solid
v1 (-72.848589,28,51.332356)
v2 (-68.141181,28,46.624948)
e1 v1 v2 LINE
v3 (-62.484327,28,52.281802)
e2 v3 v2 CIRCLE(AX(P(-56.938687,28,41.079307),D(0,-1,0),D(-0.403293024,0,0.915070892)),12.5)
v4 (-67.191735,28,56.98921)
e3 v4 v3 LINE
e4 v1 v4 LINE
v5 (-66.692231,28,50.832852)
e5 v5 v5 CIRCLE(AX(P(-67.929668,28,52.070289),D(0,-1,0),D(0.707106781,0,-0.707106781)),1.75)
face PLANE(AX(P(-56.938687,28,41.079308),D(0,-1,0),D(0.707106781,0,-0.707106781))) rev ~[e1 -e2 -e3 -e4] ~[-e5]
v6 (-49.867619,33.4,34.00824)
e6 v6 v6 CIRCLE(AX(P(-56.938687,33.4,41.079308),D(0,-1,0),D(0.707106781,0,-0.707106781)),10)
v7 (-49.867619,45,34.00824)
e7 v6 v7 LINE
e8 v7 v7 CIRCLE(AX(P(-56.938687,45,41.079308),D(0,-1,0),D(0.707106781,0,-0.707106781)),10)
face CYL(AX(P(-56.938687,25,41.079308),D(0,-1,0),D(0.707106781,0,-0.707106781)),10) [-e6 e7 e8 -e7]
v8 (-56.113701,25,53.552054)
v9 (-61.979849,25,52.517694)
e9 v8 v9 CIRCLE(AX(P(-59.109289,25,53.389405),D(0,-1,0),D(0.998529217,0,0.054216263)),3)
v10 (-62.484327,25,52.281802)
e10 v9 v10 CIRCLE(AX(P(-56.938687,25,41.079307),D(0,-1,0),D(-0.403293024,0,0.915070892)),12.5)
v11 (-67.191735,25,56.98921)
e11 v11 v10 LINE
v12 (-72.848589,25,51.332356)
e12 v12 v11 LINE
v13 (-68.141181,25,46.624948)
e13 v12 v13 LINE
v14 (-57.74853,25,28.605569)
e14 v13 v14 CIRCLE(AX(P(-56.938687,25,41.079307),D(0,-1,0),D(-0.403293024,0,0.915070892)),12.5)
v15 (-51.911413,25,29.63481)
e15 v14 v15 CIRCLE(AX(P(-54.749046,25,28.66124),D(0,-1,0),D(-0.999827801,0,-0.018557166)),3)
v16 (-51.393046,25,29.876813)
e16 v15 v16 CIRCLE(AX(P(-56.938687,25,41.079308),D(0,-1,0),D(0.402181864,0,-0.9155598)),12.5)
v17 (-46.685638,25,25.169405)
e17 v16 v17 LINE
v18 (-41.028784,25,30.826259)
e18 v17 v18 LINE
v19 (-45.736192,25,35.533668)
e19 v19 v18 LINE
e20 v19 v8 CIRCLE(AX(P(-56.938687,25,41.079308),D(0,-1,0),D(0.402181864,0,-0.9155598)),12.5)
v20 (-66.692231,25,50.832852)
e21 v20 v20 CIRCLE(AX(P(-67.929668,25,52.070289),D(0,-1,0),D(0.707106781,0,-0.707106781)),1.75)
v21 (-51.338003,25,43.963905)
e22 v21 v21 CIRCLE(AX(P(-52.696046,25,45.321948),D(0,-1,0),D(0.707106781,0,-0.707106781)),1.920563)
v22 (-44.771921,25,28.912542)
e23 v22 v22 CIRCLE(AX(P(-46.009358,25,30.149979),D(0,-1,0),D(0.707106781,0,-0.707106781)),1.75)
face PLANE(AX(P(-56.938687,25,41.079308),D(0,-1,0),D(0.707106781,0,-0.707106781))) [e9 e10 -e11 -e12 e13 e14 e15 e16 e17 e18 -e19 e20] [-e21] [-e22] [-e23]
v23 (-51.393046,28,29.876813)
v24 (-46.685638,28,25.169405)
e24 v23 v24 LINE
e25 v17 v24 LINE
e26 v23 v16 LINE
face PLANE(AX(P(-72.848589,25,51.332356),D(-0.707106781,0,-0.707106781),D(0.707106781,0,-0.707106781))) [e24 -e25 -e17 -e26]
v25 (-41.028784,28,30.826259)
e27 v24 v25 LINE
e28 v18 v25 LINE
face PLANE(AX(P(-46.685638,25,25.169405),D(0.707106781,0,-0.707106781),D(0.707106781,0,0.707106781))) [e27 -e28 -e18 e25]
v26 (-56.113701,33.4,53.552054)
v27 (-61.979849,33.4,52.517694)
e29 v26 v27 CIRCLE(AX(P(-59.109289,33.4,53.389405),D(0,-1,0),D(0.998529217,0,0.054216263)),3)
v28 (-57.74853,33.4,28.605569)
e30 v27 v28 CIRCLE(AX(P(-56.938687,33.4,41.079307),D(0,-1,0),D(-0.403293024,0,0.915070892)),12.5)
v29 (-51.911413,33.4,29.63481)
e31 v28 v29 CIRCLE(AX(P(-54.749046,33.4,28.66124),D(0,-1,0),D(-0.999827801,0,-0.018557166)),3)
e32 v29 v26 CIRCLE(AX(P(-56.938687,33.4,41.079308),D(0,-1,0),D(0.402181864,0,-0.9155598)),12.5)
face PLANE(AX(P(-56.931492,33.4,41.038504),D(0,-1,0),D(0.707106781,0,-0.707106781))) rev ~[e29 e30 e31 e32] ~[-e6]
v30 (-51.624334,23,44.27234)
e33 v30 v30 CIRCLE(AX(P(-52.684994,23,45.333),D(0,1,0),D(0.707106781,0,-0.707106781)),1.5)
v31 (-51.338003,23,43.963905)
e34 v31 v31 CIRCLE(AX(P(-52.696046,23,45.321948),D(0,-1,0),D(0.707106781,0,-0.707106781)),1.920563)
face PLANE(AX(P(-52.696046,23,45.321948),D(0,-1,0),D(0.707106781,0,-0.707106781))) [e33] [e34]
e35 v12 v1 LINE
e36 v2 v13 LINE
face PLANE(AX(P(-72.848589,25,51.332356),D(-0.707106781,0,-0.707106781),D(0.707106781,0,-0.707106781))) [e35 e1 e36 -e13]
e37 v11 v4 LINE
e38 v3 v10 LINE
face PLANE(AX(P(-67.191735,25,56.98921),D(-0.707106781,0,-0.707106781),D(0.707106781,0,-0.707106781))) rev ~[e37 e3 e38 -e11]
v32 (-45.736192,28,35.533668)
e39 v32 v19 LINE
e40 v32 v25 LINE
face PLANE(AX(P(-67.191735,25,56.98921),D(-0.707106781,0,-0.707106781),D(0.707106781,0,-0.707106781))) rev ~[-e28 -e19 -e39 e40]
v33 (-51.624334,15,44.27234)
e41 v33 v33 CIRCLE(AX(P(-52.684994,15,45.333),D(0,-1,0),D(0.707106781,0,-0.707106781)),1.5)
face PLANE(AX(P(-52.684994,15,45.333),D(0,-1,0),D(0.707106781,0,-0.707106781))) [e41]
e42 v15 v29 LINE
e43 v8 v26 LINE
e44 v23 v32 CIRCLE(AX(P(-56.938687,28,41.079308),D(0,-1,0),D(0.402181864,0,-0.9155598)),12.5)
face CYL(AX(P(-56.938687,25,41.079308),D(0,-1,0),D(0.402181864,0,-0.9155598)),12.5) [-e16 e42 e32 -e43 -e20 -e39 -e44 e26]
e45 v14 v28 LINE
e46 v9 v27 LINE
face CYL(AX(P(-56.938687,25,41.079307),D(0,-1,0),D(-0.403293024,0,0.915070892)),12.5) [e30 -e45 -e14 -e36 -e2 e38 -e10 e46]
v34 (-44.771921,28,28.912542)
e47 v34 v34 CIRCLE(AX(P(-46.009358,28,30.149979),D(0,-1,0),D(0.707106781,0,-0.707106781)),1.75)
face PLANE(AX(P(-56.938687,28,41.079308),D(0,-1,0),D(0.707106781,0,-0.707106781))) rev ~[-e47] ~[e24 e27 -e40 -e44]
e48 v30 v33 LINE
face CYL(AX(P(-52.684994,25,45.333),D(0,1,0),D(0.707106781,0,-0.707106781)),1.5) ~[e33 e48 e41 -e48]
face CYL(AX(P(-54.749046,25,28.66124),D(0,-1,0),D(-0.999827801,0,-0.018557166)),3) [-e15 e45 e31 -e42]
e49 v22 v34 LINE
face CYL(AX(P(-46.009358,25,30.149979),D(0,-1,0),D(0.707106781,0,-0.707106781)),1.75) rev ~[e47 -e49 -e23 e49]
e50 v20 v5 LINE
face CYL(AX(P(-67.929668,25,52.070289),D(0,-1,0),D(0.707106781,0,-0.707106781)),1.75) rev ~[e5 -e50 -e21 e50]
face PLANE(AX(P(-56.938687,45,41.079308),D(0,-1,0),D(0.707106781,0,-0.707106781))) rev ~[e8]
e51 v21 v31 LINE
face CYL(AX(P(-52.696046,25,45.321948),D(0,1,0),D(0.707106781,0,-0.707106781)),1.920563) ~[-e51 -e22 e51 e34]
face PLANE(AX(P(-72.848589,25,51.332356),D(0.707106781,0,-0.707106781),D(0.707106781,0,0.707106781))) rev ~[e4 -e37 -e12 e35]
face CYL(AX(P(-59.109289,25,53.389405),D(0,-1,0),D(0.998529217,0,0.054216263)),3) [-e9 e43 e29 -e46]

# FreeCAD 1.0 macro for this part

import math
import FreeCAD as App
import Part
import Sketcher
Q = App.Units.Quantity

doc = App.newDocument("Part")
params = doc.addObject("Spreadsheet::Sheet", "Params")
for row, (alias, value) in enumerate([
    ("sketch1_diameter", "3.5 mm"),
    ("sketch1_width", "37 mm"),
    ("sketch1_height", "8 mm"),
    ("pad1_length", "3 mm"),
    ("sketch2_radius", "3 mm"),
    ("sketch2_radius2", "12.5 mm"),
    ("pad2_length", "8.4 mm"),
    ("sketch3_diameter", "20 mm"),
    ("pad3_length", "20 mm"),
    ("pad4_length", "2 mm"),
    ("sketch5_diameter", "3 mm"),
    ("pad5_length", "10 mm"),
], start=1):
    params.set(f"A{row}", alias)
    params.set(f"B{row}", "=" + value)
    params.setAlias(f"B{row}", alias)

body = doc.addObject("PartDesign::Body", "Body")

# Sketch on XY plane
sketch1 = doc.addObject("Sketcher::SketchObject", "Sketch")
body.addObject(sketch1)
sketch1.AttachmentSupport = (doc.XY_Plane, [""])
sketch1.MapMode = "FlatFace"
sketch1.addGeometry([
    Part.LineSegment(App.Vector(-18.5, 4, 0), App.Vector(-18.5, -4, 0)),  # 0
    Part.LineSegment(App.Vector(-18.5, -4, 0), App.Vector(18.5, -4, 0)),  # 1
    Part.LineSegment(App.Vector(18.5, -4, 0), App.Vector(18.5, 4, 0)),  # 2
    Part.LineSegment(App.Vector(18.5, 4, 0), App.Vector(-18.5, 4, 0)),  # 3
    Part.Circle(App.Vector(-15.5, 0, 0), App.Vector(0, 0, 1), 1.8),  # 4
    Part.Circle(App.Vector(15.5, 0, 0), App.Vector(0, 0, 1), 1.8),  # 5
], False)
sketch1.addConstraint([
    Sketcher.Constraint("Coincident", 0, 2, 1, 1),
    Sketcher.Constraint("Coincident", 1, 2, 2, 1),
    Sketcher.Constraint("Coincident", 2, 2, 3, 1),
    Sketcher.Constraint("Coincident", 3, 2, 0, 1),
    Sketcher.Constraint("Vertical", 0),
    Sketcher.Constraint("Horizontal", 1),
    Sketcher.Constraint("Vertical", 2),
    Sketcher.Constraint("Horizontal", 3),
    Sketcher.Constraint("Equal", 4, 5),
    Sketcher.Constraint("Symmetric", 0, 2, 2, 2, -1, 1),
    Sketcher.Constraint("PointOnObject", 4, 3, -1),
    Sketcher.Constraint("PointOnObject", 5, 3, -1),
    Sketcher.Constraint("Diameter", 4, Q("3.5 mm")),
    Sketcher.Constraint("DistanceX", 1, 1, 1, 2, Q("37 mm")),
    Sketcher.Constraint("DistanceY", 0, 2, 0, 1, Q("8 mm")),
    Sketcher.Constraint("DistanceX", 4, 3, 5, 3, Q("31 mm")),
    Sketcher.Constraint("DistanceX", 4, 3, -1, 1, Q("15.543595 mm")),
])
sketch1.setExpression("Constraints[12]", "Params.sketch1_diameter")
sketch1.setExpression("Constraints[13]", "Params.sketch1_width")
sketch1.setExpression("Constraints[14]", "Params.sketch1_height")
pad1 = doc.addObject("PartDesign::Pad", "Pad")
body.addObject(pad1)
pad1.Profile = sketch1
pad1.setExpression("Length", "Params.pad1_length")
pad1.Reversed = True

# Sketch on XY plane
sketch2 = doc.addObject("Sketcher::SketchObject", "Sketch001")
body.addObject(sketch2)
sketch2.AttachmentSupport = (doc.XY_Plane, [""])
sketch2.MapMode = "FlatFace"
sketch2.addGeometry([
    Part.ArcOfCircle(Part.Circle(App.Vector(0, 0, 0), App.Vector(0, 0, 1), 12.5), math.radians(159), math.radians(311)),
    Part.ArcOfCircle(Part.Circle(App.Vector(10.3, -7.2, 0), App.Vector(0, 0, 1), 3), math.radians(-134), math.radians(64)),
    Part.ArcOfCircle(Part.Circle(App.Vector(0, 0, 0), App.Vector(0, 0, 1), 12.5), math.radians(-21), math.radians(131)),
    Part.ArcOfCircle(Part.Circle(App.Vector(-10.2, 7.2, 0), App.Vector(0, 0, 1), 3), math.radians(48), math.radians(242)),
], False)
sketch2.addConstraint([
    Sketcher.Constraint("Coincident", 0, 2, 1, 1),
    Sketcher.Constraint("Coincident", 1, 2, 2, 1),
    Sketcher.Constraint("Coincident", 2, 2, 3, 1),
    Sketcher.Constraint("Coincident", 3, 2, 0, 1),
    Sketcher.Constraint("Coincident", 0, 3, -1, 1),
    Sketcher.Constraint("Coincident", 2, 3, -1, 1),
    Sketcher.Constraint("Equal", 0, 2),
    Sketcher.Constraint("Equal", 1, 3),
    Sketcher.Constraint("Radius", 1, Q("3 mm")),
    Sketcher.Constraint("Radius", 0, Q("12.5 mm")),
    Sketcher.Constraint("DistanceX", 3, 3, -1, 1, Q("10.239401 mm")),
    Sketcher.Constraint("DistanceX", -1, 1, 1, 2, Q("11.647301 mm")),
    Sketcher.Constraint("DistanceX", 3, 2, -1, 1, Q("11.652801 mm")),
    Sketcher.Constraint("DistanceX", -1, 1, 1, 3, Q("10.329209 mm")),
])
sketch2.setExpression("Constraints[8]", "Params.sketch2_radius")
sketch2.setExpression("Constraints[9]", "Params.sketch2_radius2")
pad2 = doc.addObject("PartDesign::Pad", "Pad001")
body.addObject(pad2)
pad2.Profile = sketch2
pad2.setExpression("Length", "Params.pad2_length")
pad2.Reversed = True

# Sketch on XY plane
sketch3 = doc.addObject("Sketcher::SketchObject", "Sketch002")
body.addObject(sketch3)
sketch3.AttachmentSupport = (doc.XY_Plane, [""])
sketch3.MapMode = "FlatFace"
sketch3.addGeometry(Part.Circle(App.Vector(0, 0, 0), App.Vector(0, 0, 1), 10), False)
sketch3.addConstraint([
    Sketcher.Constraint("Coincident", 0, 3, -1, 1),
    Sketcher.Constraint("Diameter", 0, Q("20 mm")),
])
sketch3.setExpression("Constraints[1]", "Params.sketch3_diameter")
pad3 = doc.addObject("PartDesign::Pad", "Pad002")
body.addObject(pad3)
pad3.Profile = sketch3
pad3.setExpression("Length", "Params.pad3_length")
pad3.Reversed = True

# Sketch on XY plane
sketch4 = doc.addObject("Sketcher::SketchObject", "Sketch003")
body.addObject(sketch4)
sketch4.AttachmentSupport = (doc.XY_Plane, [""])
sketch4.MapMode = "FlatFace"
sketch4.addGeometry(Part.Circle(App.Vector(0, 6, 0), App.Vector(0, 0, 1), 1.9), False)
sketch4.addConstraint([
    Sketcher.Constraint("PointOnObject", 0, 3, -2),
    Sketcher.Constraint("DistanceY", -1, 1, 0, 3, Q("6 mm")),
    Sketcher.Constraint("Diameter", 0, Q("3.841126 mm")),
])
pad4 = doc.addObject("PartDesign::Pad", "Pad003")
body.addObject(pad4)
pad4.Profile = sketch4
pad4.setExpression("Length", "Params.pad4_length")

# Sketch on XY plane
sketch5 = doc.addObject("Sketcher::SketchObject", "Sketch004")
body.addObject(sketch5)
sketch5.AttachmentSupport = (doc.XY_Plane, [""])
sketch5.MapMode = "FlatFace"
sketch5.addGeometry(Part.Circle(App.Vector(0, 6, 0), App.Vector(0, 0, 1), 1.5), False)
sketch5.addConstraint([
    Sketcher.Constraint("PointOnObject", 0, 3, -2),
    Sketcher.Constraint("Diameter", 0, Q("3 mm")),
    Sketcher.Constraint("DistanceY", -1, 1, 0, 3, Q("6.01563 mm")),
])
sketch5.setExpression("Constraints[1]", "Params.sketch5_diameter")
pad5 = doc.addObject("PartDesign::Pad", "Pad004")
body.addObject(pad5)
pad5.Profile = sketch5
pad5.setExpression("Length", "Params.pad5_length")
body2 = doc.addObject("PartDesign::Body", "Body001")
doc.recompute()

body.Placement = App.Placement(App.Vector(0, 0, 0), App.Rotation(App.Vector(1, 0, 0), 270))
boolean = doc.addObject("PartDesign::Boolean", "Boolean")
body2.addObject(boolean)
boolean.Type = "Fuse"
boolean.addObjects([body])
body3 = doc.addObject("PartDesign::Body", "Body002")
doc.recompute()

body2.Placement = App.Placement(App.Vector(0, 0, 0), App.Rotation(App.Vector(0, 1, 0), 330))
boolean2 = doc.addObject("PartDesign::Boolean", "Boolean001")
body3.addObject(boolean2)
boolean2.Type = "Fuse"
boolean2.addObjects([body2])
body4 = doc.addObject("PartDesign::Body", "Body003")
doc.recompute()

body3.Placement = App.Placement(App.Vector(-56.598076, 17, -9.800515), App.Rotation(App.Vector(0, 0, 1), 180))
boolean3 = doc.addObject("PartDesign::Boolean", "Boolean002")
body4.addObject(boolean3)
boolean3.Type = "Fuse"
boolean3.addObjects([body3])
body5 = doc.addObject("PartDesign::Body", "Body004")
doc.recompute()

body4.Placement = App.Placement(App.Vector(-103.715114, 0, -57.786533), App.Rotation(App.Vector(0, -1, 0), 210))
boolean4 = doc.addObject("PartDesign::Boolean", "Boolean003")
body5.addObject(boolean4)
boolean4.Type = "Fuse"
boolean4.addObjects([body4])
body6 = doc.addObject("PartDesign::Body", "Body005")
doc.recompute()

body5.Placement = App.Placement(App.Vector(0.05412, 8, 13.784986), App.Rotation(App.Vector(0, 1, 0), 45))
boolean5 = doc.addObject("PartDesign::Boolean", "Boolean004")
body6.addObject(boolean5)
boolean5.Type = "Fuse"
boolean5.addObjects([body5])

doc.recompute()
